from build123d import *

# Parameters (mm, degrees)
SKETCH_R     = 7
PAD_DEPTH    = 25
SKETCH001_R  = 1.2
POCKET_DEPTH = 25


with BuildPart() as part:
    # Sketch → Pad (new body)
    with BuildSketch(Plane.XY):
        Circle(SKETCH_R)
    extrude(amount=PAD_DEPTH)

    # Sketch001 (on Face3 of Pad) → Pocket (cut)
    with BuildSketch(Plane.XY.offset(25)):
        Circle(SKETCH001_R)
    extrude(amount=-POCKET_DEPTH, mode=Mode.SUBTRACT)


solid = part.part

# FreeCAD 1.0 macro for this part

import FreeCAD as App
import Part
import Sketcher
Q = App.Units.Quantity

doc = App.newDocument("Part")
body = doc.addObject("PartDesign::Body", "Body")

# Sketch on XY plane
sketch1 = doc.addObject("Sketcher::SketchObject", "Sketch")
body.addObject(sketch1)
sketch1.AttachmentSupport = (doc.XY_Plane, [""])
sketch1.MapMode = "FlatFace"
sketch1.addGeometry(Part.Circle(App.Vector(0, 0, 0), App.Vector(0, 0, 1), 7), False)
sketch1.addConstraint(Sketcher.Constraint("Coincident", 0, 3, -1, 1))
sketch1.addConstraint(Sketcher.Constraint("Diameter", 0, Q("14 mm")))
pad1 = doc.addObject("PartDesign::Pad", "Pad")
body.addObject(pad1)
pad1.Profile = sketch1
pad1.Length = 25

# Sketch on XY plane
sketch2 = doc.addObject("Sketcher::SketchObject", "Sketch001")
body.addObject(sketch2)
sketch2.AttachmentSupport = (doc.XY_Plane, [""])
sketch2.MapMode = "FlatFace"
sketch2.AttachmentOffset = App.Placement(App.Vector(0, 0, 25), App.Rotation())
sketch2.addGeometry(Part.Circle(App.Vector(0, 0, 0), App.Vector(0, 0, 1), 1.2), False)
sketch2.addConstraint(Sketcher.Constraint("Coincident", 0, 3, -1, 1))
sketch2.addConstraint(Sketcher.Constraint("Diameter", 0, Q("2.4 mm")))
pocket1 = doc.addObject("PartDesign::Pocket", "Pocket")
body.addObject(pocket1)
pocket1.Profile = sketch2
pocket1.Length = 25

doc.recompute()
